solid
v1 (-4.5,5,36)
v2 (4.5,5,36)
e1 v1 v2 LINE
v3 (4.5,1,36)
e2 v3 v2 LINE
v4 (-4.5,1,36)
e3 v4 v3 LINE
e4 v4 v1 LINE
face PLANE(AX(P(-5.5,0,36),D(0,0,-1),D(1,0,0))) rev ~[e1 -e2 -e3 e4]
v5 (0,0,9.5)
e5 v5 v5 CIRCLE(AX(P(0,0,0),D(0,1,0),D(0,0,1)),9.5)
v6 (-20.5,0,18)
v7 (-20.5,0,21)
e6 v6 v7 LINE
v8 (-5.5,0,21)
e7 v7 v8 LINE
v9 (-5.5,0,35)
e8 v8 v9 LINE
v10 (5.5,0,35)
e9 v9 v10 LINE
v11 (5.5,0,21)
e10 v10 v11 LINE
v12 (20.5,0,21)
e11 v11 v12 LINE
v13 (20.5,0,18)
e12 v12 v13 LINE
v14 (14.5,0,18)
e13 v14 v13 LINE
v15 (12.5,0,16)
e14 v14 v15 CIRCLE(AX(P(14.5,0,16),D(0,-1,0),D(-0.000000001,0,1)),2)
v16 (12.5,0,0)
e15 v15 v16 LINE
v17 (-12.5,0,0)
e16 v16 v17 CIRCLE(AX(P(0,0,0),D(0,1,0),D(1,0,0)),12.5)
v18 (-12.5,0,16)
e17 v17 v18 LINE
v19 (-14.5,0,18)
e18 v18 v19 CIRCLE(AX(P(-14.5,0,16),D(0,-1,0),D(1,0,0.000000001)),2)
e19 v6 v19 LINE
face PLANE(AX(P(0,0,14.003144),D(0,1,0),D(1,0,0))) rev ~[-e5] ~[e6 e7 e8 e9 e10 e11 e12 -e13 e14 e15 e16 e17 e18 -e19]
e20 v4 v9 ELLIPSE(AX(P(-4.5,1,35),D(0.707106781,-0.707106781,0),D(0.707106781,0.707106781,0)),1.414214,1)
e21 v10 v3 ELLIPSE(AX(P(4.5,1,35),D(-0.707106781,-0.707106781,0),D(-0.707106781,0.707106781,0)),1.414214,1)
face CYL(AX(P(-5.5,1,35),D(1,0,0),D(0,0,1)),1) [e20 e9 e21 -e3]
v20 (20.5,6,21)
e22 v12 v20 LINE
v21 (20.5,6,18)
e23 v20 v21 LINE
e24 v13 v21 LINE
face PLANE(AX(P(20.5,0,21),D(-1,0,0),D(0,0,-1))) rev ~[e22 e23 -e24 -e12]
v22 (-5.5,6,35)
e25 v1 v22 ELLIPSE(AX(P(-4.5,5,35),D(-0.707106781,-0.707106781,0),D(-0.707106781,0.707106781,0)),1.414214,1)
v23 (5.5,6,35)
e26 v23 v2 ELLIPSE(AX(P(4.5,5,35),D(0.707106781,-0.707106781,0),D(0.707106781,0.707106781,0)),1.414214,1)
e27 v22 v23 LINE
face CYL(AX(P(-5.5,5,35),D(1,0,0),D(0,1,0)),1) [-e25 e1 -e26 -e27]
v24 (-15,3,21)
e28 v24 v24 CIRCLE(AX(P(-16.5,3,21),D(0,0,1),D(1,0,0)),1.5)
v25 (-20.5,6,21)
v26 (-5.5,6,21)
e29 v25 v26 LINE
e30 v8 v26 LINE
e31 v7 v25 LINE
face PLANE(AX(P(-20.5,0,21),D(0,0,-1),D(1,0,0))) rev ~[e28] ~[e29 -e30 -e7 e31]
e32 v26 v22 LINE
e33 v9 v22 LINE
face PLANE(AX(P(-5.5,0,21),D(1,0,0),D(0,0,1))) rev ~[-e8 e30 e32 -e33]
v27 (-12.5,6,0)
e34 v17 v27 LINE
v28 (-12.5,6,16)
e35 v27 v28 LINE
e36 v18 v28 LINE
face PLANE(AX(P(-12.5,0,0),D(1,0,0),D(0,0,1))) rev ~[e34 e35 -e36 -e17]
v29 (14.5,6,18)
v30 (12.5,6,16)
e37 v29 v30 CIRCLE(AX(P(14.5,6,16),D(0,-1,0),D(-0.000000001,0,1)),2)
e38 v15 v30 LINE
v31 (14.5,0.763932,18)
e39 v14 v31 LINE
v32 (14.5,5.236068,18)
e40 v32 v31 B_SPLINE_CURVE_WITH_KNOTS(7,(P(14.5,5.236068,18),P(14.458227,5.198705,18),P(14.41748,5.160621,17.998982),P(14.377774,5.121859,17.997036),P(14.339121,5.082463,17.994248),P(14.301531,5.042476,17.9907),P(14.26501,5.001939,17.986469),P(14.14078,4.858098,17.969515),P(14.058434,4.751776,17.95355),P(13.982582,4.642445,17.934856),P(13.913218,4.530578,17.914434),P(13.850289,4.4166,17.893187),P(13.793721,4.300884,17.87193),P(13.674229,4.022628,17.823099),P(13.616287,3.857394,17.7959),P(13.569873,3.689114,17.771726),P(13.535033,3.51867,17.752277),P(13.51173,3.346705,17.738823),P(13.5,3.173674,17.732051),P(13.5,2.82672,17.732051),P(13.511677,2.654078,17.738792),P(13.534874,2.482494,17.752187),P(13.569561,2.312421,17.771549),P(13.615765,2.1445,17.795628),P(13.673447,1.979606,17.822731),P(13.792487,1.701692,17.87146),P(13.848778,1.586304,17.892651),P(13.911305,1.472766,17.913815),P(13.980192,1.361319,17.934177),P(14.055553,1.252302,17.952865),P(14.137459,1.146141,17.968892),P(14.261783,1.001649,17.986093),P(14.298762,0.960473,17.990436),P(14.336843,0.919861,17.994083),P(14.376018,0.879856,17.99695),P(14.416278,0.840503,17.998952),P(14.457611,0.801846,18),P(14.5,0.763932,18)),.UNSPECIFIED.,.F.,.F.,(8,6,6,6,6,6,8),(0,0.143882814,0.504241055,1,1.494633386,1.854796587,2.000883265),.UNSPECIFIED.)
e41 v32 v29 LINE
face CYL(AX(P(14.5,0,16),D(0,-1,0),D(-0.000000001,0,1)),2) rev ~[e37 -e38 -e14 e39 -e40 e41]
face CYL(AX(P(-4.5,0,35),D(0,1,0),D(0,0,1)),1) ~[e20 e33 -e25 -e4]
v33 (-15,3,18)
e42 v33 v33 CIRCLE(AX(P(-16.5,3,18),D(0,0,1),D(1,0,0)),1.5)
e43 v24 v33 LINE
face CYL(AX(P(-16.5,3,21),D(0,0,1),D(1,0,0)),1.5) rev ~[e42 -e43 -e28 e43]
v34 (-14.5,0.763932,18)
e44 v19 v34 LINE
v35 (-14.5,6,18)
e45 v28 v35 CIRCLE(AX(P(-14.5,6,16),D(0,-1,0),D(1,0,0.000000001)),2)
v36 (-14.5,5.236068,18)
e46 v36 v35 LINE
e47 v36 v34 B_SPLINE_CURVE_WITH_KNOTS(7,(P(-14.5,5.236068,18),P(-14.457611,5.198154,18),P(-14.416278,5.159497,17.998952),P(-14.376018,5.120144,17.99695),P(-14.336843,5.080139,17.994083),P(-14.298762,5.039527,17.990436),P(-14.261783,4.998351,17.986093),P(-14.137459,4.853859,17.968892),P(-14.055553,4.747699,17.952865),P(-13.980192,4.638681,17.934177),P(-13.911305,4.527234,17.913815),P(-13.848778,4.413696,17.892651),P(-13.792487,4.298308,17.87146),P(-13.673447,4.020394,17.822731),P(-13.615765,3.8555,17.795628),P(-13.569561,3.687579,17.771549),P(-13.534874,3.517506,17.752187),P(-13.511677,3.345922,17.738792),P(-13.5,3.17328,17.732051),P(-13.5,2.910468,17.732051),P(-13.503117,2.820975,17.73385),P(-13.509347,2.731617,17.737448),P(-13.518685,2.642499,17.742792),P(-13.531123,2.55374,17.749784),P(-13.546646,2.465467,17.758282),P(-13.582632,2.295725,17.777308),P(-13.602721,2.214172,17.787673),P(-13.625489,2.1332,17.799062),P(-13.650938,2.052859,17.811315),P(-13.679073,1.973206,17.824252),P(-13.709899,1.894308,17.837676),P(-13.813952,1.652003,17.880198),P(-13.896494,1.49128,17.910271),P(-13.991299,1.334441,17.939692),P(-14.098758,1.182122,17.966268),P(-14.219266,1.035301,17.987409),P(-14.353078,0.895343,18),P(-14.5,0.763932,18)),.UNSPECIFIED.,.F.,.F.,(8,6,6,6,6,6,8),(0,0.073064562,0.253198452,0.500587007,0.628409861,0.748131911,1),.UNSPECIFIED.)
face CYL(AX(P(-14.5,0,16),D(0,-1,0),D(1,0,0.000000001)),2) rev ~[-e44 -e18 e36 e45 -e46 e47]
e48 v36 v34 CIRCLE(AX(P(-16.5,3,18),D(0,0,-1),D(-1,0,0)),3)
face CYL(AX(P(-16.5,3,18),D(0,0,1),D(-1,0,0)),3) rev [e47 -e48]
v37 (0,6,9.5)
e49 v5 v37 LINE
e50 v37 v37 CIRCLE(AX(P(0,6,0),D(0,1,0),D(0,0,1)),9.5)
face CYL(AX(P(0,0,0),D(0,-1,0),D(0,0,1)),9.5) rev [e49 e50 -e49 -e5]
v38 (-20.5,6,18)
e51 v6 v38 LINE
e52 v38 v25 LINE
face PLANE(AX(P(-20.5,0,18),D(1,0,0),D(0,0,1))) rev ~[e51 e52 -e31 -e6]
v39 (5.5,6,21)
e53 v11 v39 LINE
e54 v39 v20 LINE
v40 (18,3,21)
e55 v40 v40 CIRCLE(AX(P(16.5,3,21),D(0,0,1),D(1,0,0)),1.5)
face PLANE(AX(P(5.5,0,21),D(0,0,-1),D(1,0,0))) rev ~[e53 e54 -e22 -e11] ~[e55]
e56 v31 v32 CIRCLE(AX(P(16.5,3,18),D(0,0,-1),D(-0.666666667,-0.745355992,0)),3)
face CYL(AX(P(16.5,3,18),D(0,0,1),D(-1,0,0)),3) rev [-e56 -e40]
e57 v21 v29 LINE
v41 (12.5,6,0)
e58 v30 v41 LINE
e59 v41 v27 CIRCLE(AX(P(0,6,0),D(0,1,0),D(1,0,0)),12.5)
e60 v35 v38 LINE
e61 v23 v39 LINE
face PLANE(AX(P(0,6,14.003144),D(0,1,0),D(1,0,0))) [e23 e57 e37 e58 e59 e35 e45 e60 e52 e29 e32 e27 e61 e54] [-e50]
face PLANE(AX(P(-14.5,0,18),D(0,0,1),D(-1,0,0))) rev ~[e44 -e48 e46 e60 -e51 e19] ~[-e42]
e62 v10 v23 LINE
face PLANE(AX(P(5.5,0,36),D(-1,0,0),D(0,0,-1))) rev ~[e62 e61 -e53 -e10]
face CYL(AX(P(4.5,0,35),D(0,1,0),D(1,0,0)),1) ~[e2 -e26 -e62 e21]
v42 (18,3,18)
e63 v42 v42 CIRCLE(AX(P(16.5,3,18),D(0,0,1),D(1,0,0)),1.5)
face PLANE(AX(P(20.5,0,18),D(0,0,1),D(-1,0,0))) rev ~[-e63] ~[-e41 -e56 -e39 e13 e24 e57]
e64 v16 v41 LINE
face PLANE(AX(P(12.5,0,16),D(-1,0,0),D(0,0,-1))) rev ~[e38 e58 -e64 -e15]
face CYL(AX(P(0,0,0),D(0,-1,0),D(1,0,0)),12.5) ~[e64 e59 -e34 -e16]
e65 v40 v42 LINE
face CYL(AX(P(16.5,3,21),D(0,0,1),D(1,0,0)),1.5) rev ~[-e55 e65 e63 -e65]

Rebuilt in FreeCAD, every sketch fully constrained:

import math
import FreeCAD as App
import Part
import Sketcher
Q = App.Units.Quantity


def edges_at(feature, points):
    """Names of the edges that pass closest to the given points."""
    edges = feature.Shape.Edges
    near = lambda p: min(range(len(edges)), key=lambda i: edges[i].distToShape(Part.Vertex(*p))[0])
    return sorted({f"Edge{near(p) + 1}" for p in points})

doc = App.newDocument("Part")
params = doc.addObject("Spreadsheet::Sheet", "Params")
for row, (alias, value) in enumerate([
    ("sketch1_diameter", "19 mm"),
    ("sketch1_radius", "2 mm"),
    ("sketch1_radius2", "12.5 mm"),
    ("sketch1_width", "6 mm"),
    ("sketch1_width2", "15 mm"),
    ("pad1_length", "6 mm"),
    ("sketch2_diameter", "3 mm"),
    ("pocket1_length", "6 mm"),
    ("sketch3_diameter", "6 mm"),
    ("pocket2_length", "6 mm"),
    ("fillet_radius", "1 mm"),
], start=1):
    params.set(f"A{row}", alias)
    params.set(f"B{row}", "=" + value)
    params.setAlias(f"B{row}", alias)

body = doc.addObject("PartDesign::Body", "Body")

# Sketch on XZ plane
sketch1 = doc.addObject("Sketcher::SketchObject", "Sketch")
body.addObject(sketch1)
sketch1.AttachmentSupport = (doc.XZ_Plane, [""])
sketch1.MapMode = "FlatFace"
sketch1.addGeometry([
    Part.ArcOfCircle(Part.Circle(App.Vector(0, 0, 0), App.Vector(0, 0, 1), 12.5), math.radians(180), math.radians(360)),  # 0
    Part.LineSegment(App.Vector(-12.5, 0, 0), App.Vector(-12.5, 16, 0)),  # 1
    Part.ArcOfCircle(Part.Circle(App.Vector(-14.5, 16, 0), App.Vector(0, 0, 1), 2), math.radians(0), math.radians(90)),  # 2
    Part.LineSegment(App.Vector(-14.5, 18, 0), App.Vector(-20.5, 18, 0)),  # 3
    Part.LineSegment(App.Vector(-20.5, 18, 0), App.Vector(-20.5, 21, 0)),  # 4
    Part.LineSegment(App.Vector(-20.5, 21, 0), App.Vector(-5.5, 21, 0)),  # 5
    Part.LineSegment(App.Vector(-5.5, 21, 0), App.Vector(-5.5, 36, 0)),  # 6
    Part.LineSegment(App.Vector(-5.5, 36, 0), App.Vector(5.5, 36, 0)),  # 7
    Part.LineSegment(App.Vector(5.5, 36, 0), App.Vector(5.5, 21, 0)),  # 8
    Part.LineSegment(App.Vector(5.5, 21, 0), App.Vector(20.5, 21, 0)),  # 9
    Part.LineSegment(App.Vector(20.5, 21, 0), App.Vector(20.5, 18, 0)),  # 10
    Part.LineSegment(App.Vector(20.5, 18, 0), App.Vector(14.5, 18, 0)),  # 11
    Part.ArcOfCircle(Part.Circle(App.Vector(14.5, 16, 0), App.Vector(0, 0, 1), 2), math.radians(90), math.radians(180)),  # 12
    Part.LineSegment(App.Vector(12.5, 16, 0), App.Vector(12.5, 0, 0)),  # 13
    Part.Circle(App.Vector(0, 0, 0), App.Vector(0, 0, 1), 9.5),  # 14
], False)
sketch1.addConstraint([
    Sketcher.Constraint("Tangent", 0, 1, 1, 1),
    Sketcher.Constraint("Tangent", 1, 2, 2, 1),
    Sketcher.Constraint("Tangent", 2, 2, 3, 1),
    Sketcher.Constraint("Coincident", 3, 2, 4, 1),
    Sketcher.Constraint("Coincident", 4, 2, 5, 1),
    Sketcher.Constraint("Coincident", 5, 2, 6, 1),
    Sketcher.Constraint("Coincident", 6, 2, 7, 1),
    Sketcher.Constraint("Coincident", 7, 2, 8, 1),
    Sketcher.Constraint("Coincident", 8, 2, 9, 1),
    Sketcher.Constraint("Coincident", 9, 2, 10, 1),
    Sketcher.Constraint("Coincident", 10, 2, 11, 1),
    Sketcher.Constraint("Tangent", 11, 2, 12, 1),
    Sketcher.Constraint("Tangent", 12, 2, 13, 1),
    Sketcher.Constraint("Tangent", 13, 2, 0, 2),
    Sketcher.Constraint("Vertical", 1),
    Sketcher.Constraint("Horizontal", 3),
    Sketcher.Constraint("Vertical", 4),
    Sketcher.Constraint("Horizontal", 5),
    Sketcher.Constraint("Vertical", 6),
    Sketcher.Constraint("Horizontal", 7),
    Sketcher.Constraint("Vertical", 8),
    Sketcher.Constraint("Horizontal", 9),
    Sketcher.Constraint("Vertical", 10),
    Sketcher.Constraint("Horizontal", 11),
    Sketcher.Constraint("Vertical", 13),
    Sketcher.Constraint("Coincident", 0, 3, -1, 1),
    Sketcher.Constraint("Coincident", 14, 3, -1, 1),
    Sketcher.Constraint("Equal", 2, 12),
    Sketcher.Constraint("Symmetric", 5, 2, 8, 2, -2),
    Sketcher.Constraint("Symmetric", 3, 2, 10, 2, -2),
    Sketcher.Constraint("Equal", 9, 6),
    Sketcher.Constraint("Diameter", 14, Q("19 mm")),
    Sketcher.Constraint("Radius", 2, Q("2 mm")),
    Sketcher.Constraint("Radius", 0, Q("12.5 mm")),
    Sketcher.Constraint("DistanceX", 3, 2, 3, 1, Q("6 mm")),
    Sketcher.Constraint("DistanceX", 5, 1, 5, 2, Q("15 mm")),
    Sketcher.Constraint("DistanceY", 1, 1, 1, 2, Q("16 mm")),
    Sketcher.Constraint("DistanceY", 4, 1, 4, 2, Q("3 mm")),
])
sketch1.setExpression("Constraints[31]", "Params.sketch1_diameter")
sketch1.setExpression("Constraints[32]", "Params.sketch1_radius")
sketch1.setExpression("Constraints[33]", "Params.sketch1_radius2")
sketch1.setExpression("Constraints[34]", "Params.sketch1_width")
sketch1.setExpression("Constraints[35]", "Params.sketch1_width2")
pad1 = doc.addObject("PartDesign::Pad", "Pad")
body.addObject(pad1)
pad1.Profile = sketch1
pad1.setExpression("Length", "Params.pad1_length")
pad1.Reversed = True

# Sketch on XY plane
sketch2 = doc.addObject("Sketcher::SketchObject", "Sketch001")
body.addObject(sketch2)
sketch2.AttachmentSupport = (doc.XY_Plane, [""])
sketch2.MapMode = "FlatFace"
sketch2.AttachmentOffset = App.Placement(App.Vector(0, 0, 21), App.Rotation())
sketch2.addGeometry([
    Part.Circle(App.Vector(-16.5, 3, 0), App.Vector(0, 0, 1), 1.5),
    Part.Circle(App.Vector(16.5, 3, 0), App.Vector(0, 0, 1), 1.5),
], False)
sketch2.addConstraint([
    Sketcher.Constraint("Equal", 0, 1),
    Sketcher.Constraint("Symmetric", 0, 3, 1, 3, -2),
    Sketcher.Constraint("Diameter", 0, Q("3 mm")),
    Sketcher.Constraint("DistanceY", -1, 1, 0, 3, Q("3 mm")),
    Sketcher.Constraint("DistanceX", 0, 3, 1, 3, Q("33 mm")),
])
sketch2.setExpression("Constraints[2]", "Params.sketch2_diameter")
pocket1 = doc.addObject("PartDesign::Pocket", "Pocket")
body.addObject(pocket1)
pocket1.Profile = sketch2
pocket1.setExpression("Length", "Params.pocket1_length")

# Sketch on XY plane
sketch3 = doc.addObject("Sketcher::SketchObject", "Sketch002")
body.addObject(sketch3)
sketch3.AttachmentSupport = (doc.XY_Plane, [""])
sketch3.MapMode = "FlatFace"
sketch3.AttachmentOffset = App.Placement(App.Vector(0, 0, 18), App.Rotation())
sketch3.addGeometry([
    Part.Circle(App.Vector(16.5, 3, 0), App.Vector(0, 0, 1), 3),
    Part.Circle(App.Vector(-16.5, 3, 0), App.Vector(0, 0, 1), 3),
], False)
sketch3.addConstraint([
    Sketcher.Constraint("Equal", 0, 1),
    Sketcher.Constraint("Symmetric", 0, 3, 1, 3, -2),
    Sketcher.Constraint("Diameter", 0, Q("6 mm")),
    Sketcher.Constraint("DistanceY", -1, 1, 0, 3, Q("3 mm")),
    Sketcher.Constraint("DistanceX", 1, 3, 0, 3, Q("33 mm")),
])
sketch3.setExpression("Constraints[2]", "Params.sketch3_diameter")
pocket2 = doc.addObject("PartDesign::Pocket", "Pocket001")
body.addObject(pocket2)
pocket2.Profile = sketch3
pocket2.setExpression("Length", "Params.pocket2_length")
doc.recompute()

fillet = doc.addObject("PartDesign::Fillet", "Fillet")
body.addObject(fillet)
fillet.Base = (pocket2, edges_at(pocket2, [
    (5.5, 3, 36),
    (-5.5, 3, 36),
    (0, 6, 36),
    (0, 0, 36),
]))
fillet.setExpression("Radius", "Params.fillet_radius")

doc.recompute()
